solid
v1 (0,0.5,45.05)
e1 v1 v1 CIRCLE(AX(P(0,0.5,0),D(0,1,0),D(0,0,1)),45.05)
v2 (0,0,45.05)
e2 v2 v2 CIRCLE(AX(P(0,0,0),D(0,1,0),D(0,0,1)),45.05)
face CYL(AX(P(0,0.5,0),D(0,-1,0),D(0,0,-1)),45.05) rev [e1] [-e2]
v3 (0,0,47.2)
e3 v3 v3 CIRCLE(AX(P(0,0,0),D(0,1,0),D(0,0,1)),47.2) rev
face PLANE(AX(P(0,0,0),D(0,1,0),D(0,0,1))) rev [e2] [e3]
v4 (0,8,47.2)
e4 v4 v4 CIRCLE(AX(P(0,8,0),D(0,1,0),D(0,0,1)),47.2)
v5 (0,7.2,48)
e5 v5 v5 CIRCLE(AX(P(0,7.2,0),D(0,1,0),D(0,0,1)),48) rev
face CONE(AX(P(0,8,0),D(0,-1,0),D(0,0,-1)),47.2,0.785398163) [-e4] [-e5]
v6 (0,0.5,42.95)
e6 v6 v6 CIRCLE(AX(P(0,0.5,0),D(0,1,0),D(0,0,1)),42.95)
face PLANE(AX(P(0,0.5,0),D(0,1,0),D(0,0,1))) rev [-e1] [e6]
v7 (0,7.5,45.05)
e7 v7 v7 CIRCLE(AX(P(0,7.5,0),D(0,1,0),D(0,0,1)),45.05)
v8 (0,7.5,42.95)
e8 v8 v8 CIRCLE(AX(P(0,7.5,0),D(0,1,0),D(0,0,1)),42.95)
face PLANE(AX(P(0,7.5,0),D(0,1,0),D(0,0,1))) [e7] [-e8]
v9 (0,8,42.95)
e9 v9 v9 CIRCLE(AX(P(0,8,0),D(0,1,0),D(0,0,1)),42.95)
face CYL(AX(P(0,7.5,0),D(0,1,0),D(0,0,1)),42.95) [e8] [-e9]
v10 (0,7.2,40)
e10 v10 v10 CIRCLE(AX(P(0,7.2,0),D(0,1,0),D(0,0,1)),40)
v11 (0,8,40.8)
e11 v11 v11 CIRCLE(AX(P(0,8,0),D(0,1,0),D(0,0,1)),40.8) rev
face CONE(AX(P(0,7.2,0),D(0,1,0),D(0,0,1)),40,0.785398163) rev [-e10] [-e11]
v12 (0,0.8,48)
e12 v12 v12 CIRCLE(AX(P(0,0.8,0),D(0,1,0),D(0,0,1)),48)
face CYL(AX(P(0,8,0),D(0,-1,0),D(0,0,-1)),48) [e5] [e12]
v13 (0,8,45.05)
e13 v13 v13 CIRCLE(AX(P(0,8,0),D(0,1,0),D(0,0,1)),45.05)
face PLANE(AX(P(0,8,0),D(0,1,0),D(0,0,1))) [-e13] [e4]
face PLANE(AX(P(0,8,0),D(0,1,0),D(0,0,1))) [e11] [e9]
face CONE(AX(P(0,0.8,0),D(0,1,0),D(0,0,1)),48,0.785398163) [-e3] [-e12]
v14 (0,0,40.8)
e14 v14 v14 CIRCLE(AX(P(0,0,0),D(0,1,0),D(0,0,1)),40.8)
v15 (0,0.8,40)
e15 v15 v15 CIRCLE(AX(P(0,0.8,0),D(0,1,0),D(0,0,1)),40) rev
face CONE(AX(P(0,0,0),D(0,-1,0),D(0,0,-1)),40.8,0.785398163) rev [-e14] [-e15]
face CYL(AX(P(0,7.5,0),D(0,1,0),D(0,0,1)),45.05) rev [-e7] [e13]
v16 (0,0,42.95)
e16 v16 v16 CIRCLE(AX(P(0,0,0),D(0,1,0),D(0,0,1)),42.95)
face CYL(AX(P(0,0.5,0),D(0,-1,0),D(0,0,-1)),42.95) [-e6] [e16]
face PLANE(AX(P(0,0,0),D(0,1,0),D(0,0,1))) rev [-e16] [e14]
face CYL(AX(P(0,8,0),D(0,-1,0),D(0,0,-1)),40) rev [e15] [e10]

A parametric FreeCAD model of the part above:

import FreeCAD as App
import Part
import Sketcher

V = App.Vector


def edges_at(feature, points):
    """Names of the edges that pass closest to the given points."""
    edges = feature.Shape.Edges
    near = lambda p: min(range(len(edges)), key=lambda i: edges[i].distToShape(Part.Vertex(*p))[0])
    return sorted({f"Edge{near(p) + 1}" for p in points})

doc = App.newDocument("Part")
params = doc.addObject("Spreadsheet::Sheet", "Params")
for row, (alias, value) in enumerate([
    ("sketch1_diameter", "96 mm"),
    ("sketch1_diameter2", "80 mm"),
    ("pad1_length", "8 mm"),
    ("sketch2_diameter", "90.1 mm"),
    ("sketch2_diameter2", "85.9 mm"),
    ("pocket1_length", "0.5 mm"),
    ("sketch3_diameter", "90.1 mm"),
    ("sketch3_diameter2", "85.9 mm"),
    ("pocket2_length", "0.5 mm"),
    ("chamfer_size", "0.8 mm"),
], start=1):
    params.set(f"A{row}", alias)
    params.set(f"B{row}", "=" + value)
    params.setAlias(f"B{row}", alias)

body = doc.addObject("PartDesign::Body", "Body")

# Sketch on XZ plane
sketch1 = doc.addObject("Sketcher::SketchObject", "Sketch")
body.addObject(sketch1)
sketch1.AttachmentSupport = (doc.XZ_Plane, [""])
sketch1.MapMode = "FlatFace"
sketch1.addGeometry([
    Part.Circle(V(0, 0, 0), V(0, 0, 1), 48),
    Part.Circle(V(0, 0, 0), V(0, 0, 1), 40),
], False)
sketch1.addConstraint([
    Sketcher.Constraint("Coincident", 0, 3, -1, 1),
    Sketcher.Constraint("Coincident", 1, 3, -1, 1),
    Sketcher.Constraint("Diameter", 0, 96.0),
    Sketcher.Constraint("Diameter", 1, 80.0),
])
sketch1.setExpression("Constraints[2]", "Params.sketch1_diameter")
sketch1.setExpression("Constraints[3]", "Params.sketch1_diameter2")
pad1 = doc.addObject("PartDesign::Pad", "Pad")
body.addObject(pad1)
pad1.Profile = sketch1
pad1.setExpression("Length", "Params.pad1_length")
pad1.Reversed = True

# Sketch on XZ plane
sketch2 = doc.addObject("Sketcher::SketchObject", "Sketch001")
body.addObject(sketch2)
sketch2.AttachmentSupport = (doc.XZ_Plane, [""])
sketch2.MapMode = "FlatFace"
sketch2.AttachmentOffset = App.Placement(V(0, 0, -8), App.Rotation())
sketch2.addGeometry([
    Part.Circle(V(0, 0, 0), V(0, 0, 1), 45),
    Part.Circle(V(0, 0, 0), V(0, 0, 1), 43),
], False)
sketch2.addConstraint([
    Sketcher.Constraint("Coincident", 0, 3, -1, 1),
    Sketcher.Constraint("Coincident", 1, 3, -1, 1),
    Sketcher.Constraint("Diameter", 0, 90.1),
    Sketcher.Constraint("Diameter", 1, 85.9),
])
sketch2.setExpression("Constraints[2]", "Params.sketch2_diameter")
sketch2.setExpression("Constraints[3]", "Params.sketch2_diameter2")
pocket1 = doc.addObject("PartDesign::Pocket", "Pocket")
body.addObject(pocket1)
pocket1.Profile = sketch2
pocket1.setExpression("Length", "Params.pocket1_length")
pocket1.Reversed = True

# Sketch on XZ plane
sketch3 = doc.addObject("Sketcher::SketchObject", "Sketch002")
body.addObject(sketch3)
sketch3.AttachmentSupport = (doc.XZ_Plane, [""])
sketch3.MapMode = "FlatFace"
sketch3.AttachmentOffset = App.Placement(V(0, 0, -0.5), App.Rotation())
sketch3.addGeometry([
    Part.Circle(V(0, 0, 0), V(0, 0, 1), 45),
    Part.Circle(V(0, 0, 0), V(0, 0, 1), 43),
], False)
sketch3.addConstraint([
    Sketcher.Constraint("Coincident", 0, 3, -1, 1),
    Sketcher.Constraint("Coincident", 1, 3, -1, 1),
    Sketcher.Constraint("Diameter", 0, 90.1),
    Sketcher.Constraint("Diameter", 1, 85.9),
])
sketch3.setExpression("Constraints[2]", "Params.sketch3_diameter")
sketch3.setExpression("Constraints[3]", "Params.sketch3_diameter2")
pocket2 = doc.addObject("PartDesign::Pocket", "Pocket001")
body.addObject(pocket2)
pocket2.Profile = sketch3
pocket2.setExpression("Length", "Params.pocket2_length")
pocket2.Reversed = True
doc.recompute()

chamfer = doc.addObject("PartDesign::Chamfer", "Chamfer")
body.addObject(chamfer)
chamfer.Base = (pocket2, edges_at(pocket2, [
    (0, 0, -48),
    (0, 8, -48),
    (0, 0, -40),
    (0, 8, -40),
]))
chamfer.setExpression("Size", "Params.chamfer_size")

doc.recompute()
